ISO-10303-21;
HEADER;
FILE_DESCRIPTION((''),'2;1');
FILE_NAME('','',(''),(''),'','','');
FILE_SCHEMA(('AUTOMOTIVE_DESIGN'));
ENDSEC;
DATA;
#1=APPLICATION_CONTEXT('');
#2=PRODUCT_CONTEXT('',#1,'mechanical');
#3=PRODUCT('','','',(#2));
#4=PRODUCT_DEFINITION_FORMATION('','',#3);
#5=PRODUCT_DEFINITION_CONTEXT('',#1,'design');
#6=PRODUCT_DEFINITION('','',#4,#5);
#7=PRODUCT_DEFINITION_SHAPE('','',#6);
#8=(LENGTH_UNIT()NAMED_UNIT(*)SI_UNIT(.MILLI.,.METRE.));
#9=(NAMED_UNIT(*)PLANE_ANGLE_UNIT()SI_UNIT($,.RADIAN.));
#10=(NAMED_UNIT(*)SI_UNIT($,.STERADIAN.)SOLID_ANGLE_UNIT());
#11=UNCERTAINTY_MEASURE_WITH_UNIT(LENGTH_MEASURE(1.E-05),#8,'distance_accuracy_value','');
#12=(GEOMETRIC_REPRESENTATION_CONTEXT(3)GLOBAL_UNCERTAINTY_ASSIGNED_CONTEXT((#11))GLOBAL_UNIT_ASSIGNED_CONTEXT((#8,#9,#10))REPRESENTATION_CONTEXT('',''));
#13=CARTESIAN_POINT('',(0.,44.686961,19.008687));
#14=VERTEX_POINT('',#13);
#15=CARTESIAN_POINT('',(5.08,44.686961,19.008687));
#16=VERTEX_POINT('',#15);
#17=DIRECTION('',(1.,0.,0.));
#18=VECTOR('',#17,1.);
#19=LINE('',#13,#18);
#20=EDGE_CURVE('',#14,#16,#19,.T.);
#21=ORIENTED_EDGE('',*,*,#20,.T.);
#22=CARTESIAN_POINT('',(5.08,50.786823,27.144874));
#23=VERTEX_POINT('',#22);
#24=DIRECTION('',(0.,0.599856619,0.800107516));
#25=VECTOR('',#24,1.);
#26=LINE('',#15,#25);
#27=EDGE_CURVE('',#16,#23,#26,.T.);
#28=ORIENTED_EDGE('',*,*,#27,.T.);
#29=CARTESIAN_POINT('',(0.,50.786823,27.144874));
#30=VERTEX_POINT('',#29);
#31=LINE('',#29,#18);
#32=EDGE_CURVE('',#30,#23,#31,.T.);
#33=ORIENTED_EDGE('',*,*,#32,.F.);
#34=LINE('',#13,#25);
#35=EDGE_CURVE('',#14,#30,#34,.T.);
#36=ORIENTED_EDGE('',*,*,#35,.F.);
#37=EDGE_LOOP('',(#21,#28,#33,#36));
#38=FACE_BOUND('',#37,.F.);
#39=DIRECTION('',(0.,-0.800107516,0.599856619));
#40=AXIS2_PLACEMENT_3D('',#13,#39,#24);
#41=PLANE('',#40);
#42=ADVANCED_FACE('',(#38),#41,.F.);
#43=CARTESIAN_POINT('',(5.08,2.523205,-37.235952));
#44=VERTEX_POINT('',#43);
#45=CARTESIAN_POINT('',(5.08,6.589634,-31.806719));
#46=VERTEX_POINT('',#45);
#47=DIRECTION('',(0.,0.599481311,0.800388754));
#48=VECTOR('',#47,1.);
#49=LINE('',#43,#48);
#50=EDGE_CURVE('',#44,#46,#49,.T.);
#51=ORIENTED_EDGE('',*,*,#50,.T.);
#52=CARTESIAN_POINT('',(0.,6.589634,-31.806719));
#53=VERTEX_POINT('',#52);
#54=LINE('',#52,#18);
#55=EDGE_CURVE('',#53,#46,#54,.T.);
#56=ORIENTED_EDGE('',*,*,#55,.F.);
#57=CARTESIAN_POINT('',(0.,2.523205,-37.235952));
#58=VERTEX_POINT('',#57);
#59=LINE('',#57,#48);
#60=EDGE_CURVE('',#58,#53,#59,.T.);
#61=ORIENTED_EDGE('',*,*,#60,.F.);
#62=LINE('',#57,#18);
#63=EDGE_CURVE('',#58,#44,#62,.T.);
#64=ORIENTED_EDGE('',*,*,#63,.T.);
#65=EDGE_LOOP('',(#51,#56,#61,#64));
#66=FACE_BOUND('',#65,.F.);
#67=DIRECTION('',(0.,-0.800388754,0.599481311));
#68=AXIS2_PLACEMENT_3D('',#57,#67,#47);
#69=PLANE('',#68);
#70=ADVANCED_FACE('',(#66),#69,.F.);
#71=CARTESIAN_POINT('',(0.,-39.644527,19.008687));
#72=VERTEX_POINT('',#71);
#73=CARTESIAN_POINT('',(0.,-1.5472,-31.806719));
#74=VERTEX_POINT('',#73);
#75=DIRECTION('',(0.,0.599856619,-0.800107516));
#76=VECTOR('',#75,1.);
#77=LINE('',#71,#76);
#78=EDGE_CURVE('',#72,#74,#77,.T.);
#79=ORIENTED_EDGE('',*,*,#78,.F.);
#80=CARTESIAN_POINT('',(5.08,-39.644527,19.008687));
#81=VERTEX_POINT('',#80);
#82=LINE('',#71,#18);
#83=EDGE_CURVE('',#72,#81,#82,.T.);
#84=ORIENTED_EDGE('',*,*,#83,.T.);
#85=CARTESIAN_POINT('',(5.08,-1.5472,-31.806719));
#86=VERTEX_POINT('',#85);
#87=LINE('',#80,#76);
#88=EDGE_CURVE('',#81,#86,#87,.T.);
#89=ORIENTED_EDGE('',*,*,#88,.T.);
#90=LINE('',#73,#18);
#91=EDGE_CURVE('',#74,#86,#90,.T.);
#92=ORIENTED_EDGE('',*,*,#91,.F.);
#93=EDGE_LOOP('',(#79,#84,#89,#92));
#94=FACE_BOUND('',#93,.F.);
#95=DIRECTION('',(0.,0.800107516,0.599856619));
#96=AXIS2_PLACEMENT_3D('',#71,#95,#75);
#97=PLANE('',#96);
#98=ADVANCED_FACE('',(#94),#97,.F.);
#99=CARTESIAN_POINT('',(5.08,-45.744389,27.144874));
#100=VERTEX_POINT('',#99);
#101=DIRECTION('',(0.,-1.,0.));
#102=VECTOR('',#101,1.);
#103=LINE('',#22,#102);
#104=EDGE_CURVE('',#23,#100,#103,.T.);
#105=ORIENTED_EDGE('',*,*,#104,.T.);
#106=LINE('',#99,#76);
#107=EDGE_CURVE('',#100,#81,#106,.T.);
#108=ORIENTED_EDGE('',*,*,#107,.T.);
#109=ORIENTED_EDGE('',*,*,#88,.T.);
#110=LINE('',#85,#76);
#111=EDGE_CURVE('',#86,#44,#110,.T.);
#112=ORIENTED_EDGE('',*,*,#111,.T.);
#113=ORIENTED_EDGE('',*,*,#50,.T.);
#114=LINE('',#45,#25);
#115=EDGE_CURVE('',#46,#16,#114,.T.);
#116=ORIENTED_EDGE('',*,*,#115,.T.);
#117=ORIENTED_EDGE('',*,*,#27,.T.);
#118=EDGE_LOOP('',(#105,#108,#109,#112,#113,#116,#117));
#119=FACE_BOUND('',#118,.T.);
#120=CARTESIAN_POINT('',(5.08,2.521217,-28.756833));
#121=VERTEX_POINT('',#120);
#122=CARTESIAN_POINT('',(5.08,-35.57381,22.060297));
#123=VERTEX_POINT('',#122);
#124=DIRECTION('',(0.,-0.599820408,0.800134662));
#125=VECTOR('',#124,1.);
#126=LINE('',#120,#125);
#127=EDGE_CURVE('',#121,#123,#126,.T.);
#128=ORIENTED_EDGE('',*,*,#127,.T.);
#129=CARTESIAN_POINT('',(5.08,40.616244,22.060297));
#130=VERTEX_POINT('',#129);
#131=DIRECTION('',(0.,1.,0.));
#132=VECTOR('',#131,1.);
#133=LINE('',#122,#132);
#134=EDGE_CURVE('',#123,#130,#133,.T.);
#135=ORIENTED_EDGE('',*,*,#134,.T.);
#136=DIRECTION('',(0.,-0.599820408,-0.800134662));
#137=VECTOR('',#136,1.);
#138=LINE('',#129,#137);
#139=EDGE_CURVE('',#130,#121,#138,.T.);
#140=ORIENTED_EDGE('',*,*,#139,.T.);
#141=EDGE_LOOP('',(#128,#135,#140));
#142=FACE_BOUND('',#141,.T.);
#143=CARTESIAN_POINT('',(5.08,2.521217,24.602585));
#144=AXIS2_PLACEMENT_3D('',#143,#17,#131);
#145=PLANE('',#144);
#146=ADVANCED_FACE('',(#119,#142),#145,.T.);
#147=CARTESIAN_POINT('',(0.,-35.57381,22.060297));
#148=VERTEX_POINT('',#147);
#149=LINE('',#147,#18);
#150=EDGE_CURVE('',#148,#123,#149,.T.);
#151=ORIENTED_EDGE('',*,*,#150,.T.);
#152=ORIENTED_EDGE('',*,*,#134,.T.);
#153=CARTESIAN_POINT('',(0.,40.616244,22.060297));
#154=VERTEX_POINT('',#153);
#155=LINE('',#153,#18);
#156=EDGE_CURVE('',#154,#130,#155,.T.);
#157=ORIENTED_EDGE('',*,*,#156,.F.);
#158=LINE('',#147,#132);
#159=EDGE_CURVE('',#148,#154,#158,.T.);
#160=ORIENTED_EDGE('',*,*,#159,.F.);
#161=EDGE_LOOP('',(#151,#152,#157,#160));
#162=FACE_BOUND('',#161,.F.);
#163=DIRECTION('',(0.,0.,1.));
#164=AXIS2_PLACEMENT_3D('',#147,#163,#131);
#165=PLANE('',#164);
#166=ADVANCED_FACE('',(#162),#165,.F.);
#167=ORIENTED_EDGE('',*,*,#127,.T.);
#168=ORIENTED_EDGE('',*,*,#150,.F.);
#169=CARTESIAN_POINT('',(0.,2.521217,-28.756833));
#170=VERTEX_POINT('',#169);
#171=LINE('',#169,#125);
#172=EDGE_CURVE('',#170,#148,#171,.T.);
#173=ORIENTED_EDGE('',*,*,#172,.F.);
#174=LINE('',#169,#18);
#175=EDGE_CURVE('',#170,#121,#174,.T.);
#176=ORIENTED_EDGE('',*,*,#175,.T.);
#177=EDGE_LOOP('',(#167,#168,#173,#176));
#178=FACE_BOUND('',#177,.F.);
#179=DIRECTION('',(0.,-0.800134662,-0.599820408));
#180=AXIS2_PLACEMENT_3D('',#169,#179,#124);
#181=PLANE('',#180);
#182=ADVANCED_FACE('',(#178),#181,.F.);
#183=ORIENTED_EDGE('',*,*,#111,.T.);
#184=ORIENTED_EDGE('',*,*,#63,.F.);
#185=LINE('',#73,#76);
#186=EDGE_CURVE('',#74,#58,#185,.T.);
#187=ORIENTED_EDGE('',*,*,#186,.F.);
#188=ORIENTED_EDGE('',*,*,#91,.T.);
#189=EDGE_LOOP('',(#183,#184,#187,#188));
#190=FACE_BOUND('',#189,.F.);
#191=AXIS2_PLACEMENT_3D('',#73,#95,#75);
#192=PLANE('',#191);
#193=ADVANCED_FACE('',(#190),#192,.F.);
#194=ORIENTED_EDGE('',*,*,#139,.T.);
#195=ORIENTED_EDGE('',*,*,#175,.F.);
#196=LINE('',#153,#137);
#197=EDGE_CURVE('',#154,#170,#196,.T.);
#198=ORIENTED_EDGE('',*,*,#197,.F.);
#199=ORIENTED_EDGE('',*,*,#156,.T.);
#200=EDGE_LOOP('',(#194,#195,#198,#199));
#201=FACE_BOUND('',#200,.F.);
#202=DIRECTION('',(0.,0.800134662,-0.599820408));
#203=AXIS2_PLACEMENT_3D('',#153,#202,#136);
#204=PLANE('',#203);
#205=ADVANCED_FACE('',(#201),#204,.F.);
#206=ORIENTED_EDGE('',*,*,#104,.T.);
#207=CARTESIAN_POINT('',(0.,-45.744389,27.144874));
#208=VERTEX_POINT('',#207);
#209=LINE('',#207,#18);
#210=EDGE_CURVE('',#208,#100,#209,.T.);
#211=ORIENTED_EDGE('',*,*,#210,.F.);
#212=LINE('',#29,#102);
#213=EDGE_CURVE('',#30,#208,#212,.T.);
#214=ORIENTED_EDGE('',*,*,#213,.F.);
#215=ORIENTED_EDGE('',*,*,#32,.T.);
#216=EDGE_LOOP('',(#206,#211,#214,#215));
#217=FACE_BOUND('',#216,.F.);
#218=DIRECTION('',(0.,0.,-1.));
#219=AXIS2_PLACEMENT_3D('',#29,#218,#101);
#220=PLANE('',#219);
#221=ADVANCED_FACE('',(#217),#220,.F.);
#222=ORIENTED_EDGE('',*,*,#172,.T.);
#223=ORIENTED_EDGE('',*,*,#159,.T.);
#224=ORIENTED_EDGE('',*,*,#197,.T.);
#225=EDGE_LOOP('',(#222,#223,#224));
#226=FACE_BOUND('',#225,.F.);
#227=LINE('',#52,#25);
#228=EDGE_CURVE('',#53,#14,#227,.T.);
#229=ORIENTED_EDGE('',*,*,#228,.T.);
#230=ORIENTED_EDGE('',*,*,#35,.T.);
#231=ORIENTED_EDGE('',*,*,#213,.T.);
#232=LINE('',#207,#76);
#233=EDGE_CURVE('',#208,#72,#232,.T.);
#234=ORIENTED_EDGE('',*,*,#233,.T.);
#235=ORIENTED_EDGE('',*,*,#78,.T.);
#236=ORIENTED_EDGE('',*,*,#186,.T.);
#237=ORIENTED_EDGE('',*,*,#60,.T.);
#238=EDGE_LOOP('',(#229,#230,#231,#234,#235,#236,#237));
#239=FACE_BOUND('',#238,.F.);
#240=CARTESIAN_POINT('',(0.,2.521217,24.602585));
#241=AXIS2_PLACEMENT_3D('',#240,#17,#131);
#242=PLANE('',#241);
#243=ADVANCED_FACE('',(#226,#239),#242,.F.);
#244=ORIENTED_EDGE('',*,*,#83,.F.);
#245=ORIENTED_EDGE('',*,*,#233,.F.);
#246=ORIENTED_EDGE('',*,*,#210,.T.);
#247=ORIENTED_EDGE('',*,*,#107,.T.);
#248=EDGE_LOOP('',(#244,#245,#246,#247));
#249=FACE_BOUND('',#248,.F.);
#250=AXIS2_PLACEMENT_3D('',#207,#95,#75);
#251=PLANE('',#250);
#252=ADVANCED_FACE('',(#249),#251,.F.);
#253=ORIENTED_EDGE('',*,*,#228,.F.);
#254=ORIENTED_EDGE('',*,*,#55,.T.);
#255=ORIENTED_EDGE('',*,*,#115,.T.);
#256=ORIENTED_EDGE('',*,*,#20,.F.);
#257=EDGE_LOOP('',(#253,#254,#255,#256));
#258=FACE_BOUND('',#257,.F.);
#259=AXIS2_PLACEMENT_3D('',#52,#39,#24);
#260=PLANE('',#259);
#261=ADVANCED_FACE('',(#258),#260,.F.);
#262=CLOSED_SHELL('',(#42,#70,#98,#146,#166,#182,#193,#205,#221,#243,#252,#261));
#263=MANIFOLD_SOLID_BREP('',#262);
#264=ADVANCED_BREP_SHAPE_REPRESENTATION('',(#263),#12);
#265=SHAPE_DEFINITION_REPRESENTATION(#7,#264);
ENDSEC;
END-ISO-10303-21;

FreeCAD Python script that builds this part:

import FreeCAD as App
import Part
import Sketcher
Q = App.Units.Quantity

doc = App.newDocument("Part")
body = doc.addObject("PartDesign::Body", "Body")

# Sketch on YZ plane
sketch1 = body.newObject("Sketcher::SketchObject", "Sketch")
sketch1.AttachmentSupport = (doc.getObject("YZ_Plane"), [""])
sketch1.MapMode = "FlatFace"
sketch1.addGeometry([
    Part.LineSegment(App.Vector(7, -32, 0), App.Vector(45, 19, 0)),  # 0
    Part.LineSegment(App.Vector(45, 19, 0), App.Vector(51, 27, 0)),  # 1
    Part.LineSegment(App.Vector(51, 27, 0), App.Vector(-46, 27, 0)),  # 2
    Part.LineSegment(App.Vector(-46, 27, 0), App.Vector(-40, 19, 0)),  # 3
    Part.LineSegment(App.Vector(-40, 19, 0), App.Vector(-2, -32, 0)),  # 4
    Part.LineSegment(App.Vector(-2, -32, 0), App.Vector(3, -37, 0)),  # 5
    Part.LineSegment(App.Vector(3, -37, 0), App.Vector(7, -32, 0)),  # 6
    Part.LineSegment(App.Vector(-36, 22, 0), App.Vector(41, 22, 0)),  # 7
    Part.LineSegment(App.Vector(41, 22, 0), App.Vector(3, -29, 0)),  # 8
    Part.LineSegment(App.Vector(3, -29, 0), App.Vector(-36, 22, 0)),  # 9
], False)
sketch1.addConstraint([
    Sketcher.Constraint("Coincident", 0, 2, 1, 1),
    Sketcher.Constraint("Coincident", 1, 2, 2, 1),
    Sketcher.Constraint("Coincident", 2, 2, 3, 1),
    Sketcher.Constraint("Coincident", 3, 2, 4, 1),
    Sketcher.Constraint("Coincident", 4, 2, 5, 1),
    Sketcher.Constraint("Coincident", 5, 2, 6, 1),
    Sketcher.Constraint("Coincident", 6, 2, 0, 1),
    Sketcher.Constraint("Coincident", 7, 2, 8, 1),
    Sketcher.Constraint("Coincident", 8, 2, 9, 1),
    Sketcher.Constraint("Coincident", 9, 2, 7, 1),
    Sketcher.Constraint("Horizontal", 2),
    Sketcher.Constraint("Horizontal", 7),
    Sketcher.Constraint("Parallel", 0, 1),
    Sketcher.Constraint("Parallel", 3, 4),
    Sketcher.Constraint("Parallel", 4, 5),
    Sketcher.Constraint("Horizontal", 0, 2, 3, 2),
    Sketcher.Constraint("Horizontal", 4, 2, 6, 2),
    Sketcher.Constraint("Equal", 1, 3),
    Sketcher.Constraint("Equal", 4, 8),
    Sketcher.Constraint("Equal", 8, 9),
    Sketcher.Constraint("DistanceX", 2, 2, 2, 1, 96.531212),
    Sketcher.Constraint("DistanceX", 4, 2, -1, 1, 1.5472),
    Sketcher.Constraint("Distance", 5, 6.78563),
    Sketcher.Constraint("DistanceX", 7, 1, 7, 2, 76.190054),
    Sketcher.Constraint("DistanceX", -1, 1, 0, 2, 44.686961),
    Sketcher.Constraint("DistanceX", 2, 2, -1, 1, 45.744389),
    Sketcher.Constraint("DistanceY", 4, 2, -1, 1, 31.806719),
    Sketcher.Constraint("DistanceX", 9, 2, -1, 1, 35.57381),
    Sketcher.Constraint("DistanceY", 5, 2, 0, 2, 56.24464),
    Sketcher.Constraint("DistanceY", 0, 2, 7, 2, 3.05161),
])
pad1 = body.newObject("PartDesign::Pad", "Pad")
pad1.Profile = sketch1
pad1.Length = Q("0.2 in")

doc.recompute()
